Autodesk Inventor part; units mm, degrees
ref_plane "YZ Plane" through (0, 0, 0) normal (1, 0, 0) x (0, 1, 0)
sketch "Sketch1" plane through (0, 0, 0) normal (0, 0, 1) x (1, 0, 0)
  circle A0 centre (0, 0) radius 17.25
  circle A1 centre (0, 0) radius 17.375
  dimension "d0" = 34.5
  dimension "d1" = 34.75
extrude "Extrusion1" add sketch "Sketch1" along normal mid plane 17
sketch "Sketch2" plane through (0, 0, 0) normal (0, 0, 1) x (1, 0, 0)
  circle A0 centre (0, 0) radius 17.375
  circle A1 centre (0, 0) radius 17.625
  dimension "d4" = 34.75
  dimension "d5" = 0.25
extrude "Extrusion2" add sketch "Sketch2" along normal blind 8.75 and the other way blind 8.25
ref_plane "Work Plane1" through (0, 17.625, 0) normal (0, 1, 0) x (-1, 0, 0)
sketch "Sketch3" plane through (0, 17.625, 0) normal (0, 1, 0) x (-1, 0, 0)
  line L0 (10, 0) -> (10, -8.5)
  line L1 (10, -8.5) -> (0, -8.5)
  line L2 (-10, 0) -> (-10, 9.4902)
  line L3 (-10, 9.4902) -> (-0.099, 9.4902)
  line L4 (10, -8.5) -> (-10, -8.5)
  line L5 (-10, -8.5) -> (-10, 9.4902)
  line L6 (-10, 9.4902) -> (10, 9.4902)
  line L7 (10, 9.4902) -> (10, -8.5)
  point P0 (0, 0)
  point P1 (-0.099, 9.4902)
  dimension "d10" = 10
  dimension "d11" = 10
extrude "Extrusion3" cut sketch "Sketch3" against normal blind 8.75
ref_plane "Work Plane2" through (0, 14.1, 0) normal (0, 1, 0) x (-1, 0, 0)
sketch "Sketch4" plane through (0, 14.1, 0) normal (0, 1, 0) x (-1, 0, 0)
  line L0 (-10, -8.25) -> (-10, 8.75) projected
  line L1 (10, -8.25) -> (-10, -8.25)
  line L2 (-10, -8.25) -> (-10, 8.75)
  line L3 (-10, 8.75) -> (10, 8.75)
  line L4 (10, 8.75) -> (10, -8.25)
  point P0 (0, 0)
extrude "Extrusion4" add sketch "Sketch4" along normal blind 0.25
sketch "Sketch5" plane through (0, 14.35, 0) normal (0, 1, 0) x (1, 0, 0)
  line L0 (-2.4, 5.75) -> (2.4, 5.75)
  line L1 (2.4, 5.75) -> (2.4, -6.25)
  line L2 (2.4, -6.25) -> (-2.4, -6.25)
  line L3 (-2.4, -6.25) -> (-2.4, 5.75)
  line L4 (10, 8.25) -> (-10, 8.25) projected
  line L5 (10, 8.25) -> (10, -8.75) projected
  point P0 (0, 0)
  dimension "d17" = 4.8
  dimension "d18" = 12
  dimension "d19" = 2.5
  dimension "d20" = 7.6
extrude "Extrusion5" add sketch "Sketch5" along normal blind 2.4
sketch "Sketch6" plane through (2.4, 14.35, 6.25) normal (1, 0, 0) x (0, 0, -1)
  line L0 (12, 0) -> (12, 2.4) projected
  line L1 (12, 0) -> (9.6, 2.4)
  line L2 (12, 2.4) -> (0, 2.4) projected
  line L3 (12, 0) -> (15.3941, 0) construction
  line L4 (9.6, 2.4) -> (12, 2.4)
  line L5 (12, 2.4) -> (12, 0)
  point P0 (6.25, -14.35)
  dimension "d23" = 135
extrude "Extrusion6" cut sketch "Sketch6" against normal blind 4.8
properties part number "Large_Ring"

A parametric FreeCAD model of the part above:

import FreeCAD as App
import Part
import Sketcher


def add_polygon(sketch, points):
    """Adds a closed chain of lines whose ends are joined by coincident constraints."""
    first, n = sketch.GeometryCount, len(points)
    for a, b in zip(points, points[1:] + points[:1]):
        sketch.addGeometry(Part.LineSegment(App.Vector(*a, 0), App.Vector(*b, 0)), False)
    for i in range(n):
        sketch.addConstraint(Sketcher.Constraint("Coincident", first + i, 2, first + (i + 1) % n, 1))

doc = App.newDocument("Part")
body = doc.addObject("PartDesign::Body", "Body")

# Sketch on XY plane
sketch1 = doc.addObject("Sketcher::SketchObject", "Sketch")
body.addObject(sketch1)
sketch1.AttachmentSupport = (doc.XY_Plane, [""])
sketch1.MapMode = "FlatFace"
sketch1.addGeometry([
    Part.Circle(App.Vector(0, 0, 0), App.Vector(0, 0, 1), 17),
    Part.Circle(App.Vector(0, 0, 0), App.Vector(0, 0, 1), 17),
], False)
sketch1.addConstraint([
    Sketcher.Constraint("Coincident", 0, 3, -1, 1),
    Sketcher.Constraint("Coincident", 1, 3, -1, 1),
    Sketcher.Constraint("Diameter", 1, 34.5),
    Sketcher.Constraint("Diameter", 0, 34.75),
])
pad1 = doc.addObject("PartDesign::Pad", "Pad")
body.addObject(pad1)
pad1.Profile = sketch1
pad1.Length = 17
pad1.Midplane = True

# Sketch on XY plane
sketch2 = doc.addObject("Sketcher::SketchObject", "Sketch001")
body.addObject(sketch2)
sketch2.AttachmentSupport = (doc.XY_Plane, [""])
sketch2.MapMode = "FlatFace"
sketch2.addGeometry([
    Part.Circle(App.Vector(0, 0, 0), App.Vector(0, 0, 1), 18),
    Part.Circle(App.Vector(0, 0, 0), App.Vector(0, 0, 1), 17),
], False)
sketch2.addConstraint([
    Sketcher.Constraint("Coincident", 0, 3, -1, 1),
    Sketcher.Constraint("Coincident", 1, 3, -1, 1),
    Sketcher.Constraint("Diameter", 1, 34.75),
    Sketcher.Constraint("Diameter", 0, 35.25),
])
pad2 = doc.addObject("PartDesign::Pad", "Pad001")
body.addObject(pad2)
pad2.Profile = sketch2
pad2.Type = "TwoLengths"
pad2.Length = 8.75
pad2.Length2 = 8.25

# Sketch on XZ plane
sketch3 = doc.addObject("Sketcher::SketchObject", "Sketch002")
body.addObject(sketch3)
sketch3.AttachmentSupport = (doc.XZ_Plane, [""])
sketch3.MapMode = "FlatFace"
sketch3.AttachmentOffset = App.Placement(App.Vector(0, 0, -17.625), App.Rotation())
add_polygon(sketch3, [(-10, -8), (-10, 9), (10, 9), (10, -8)])  # lines 0-3
sketch3.addConstraint([
    Sketcher.Constraint("Vertical", 0),
    Sketcher.Constraint("Horizontal", 1),
    Sketcher.Constraint("Vertical", 2),
    Sketcher.Constraint("Horizontal", 3),
    Sketcher.Constraint("DistanceX", 0, 2, -1, 1, 10.0),
    Sketcher.Constraint("DistanceX", -1, 1, 1, 2, 10.0),
    Sketcher.Constraint("DistanceY", 2, 2, -1, 1, 8.5),
    Sketcher.Constraint("DistanceY", 0, 1, 0, 2, 17.9902),
])
pocket1 = doc.addObject("PartDesign::Pocket", "Pocket")
body.addObject(pocket1)
pocket1.Profile = sketch3
pocket1.Length = 8.75
pocket1.Reversed = True

# Sketch on XZ plane
sketch4 = doc.addObject("Sketcher::SketchObject", "Sketch003")
body.addObject(sketch4)
sketch4.AttachmentSupport = (doc.XZ_Plane, [""])
sketch4.MapMode = "FlatFace"
sketch4.AttachmentOffset = App.Placement(App.Vector(0, 0, -14.1), App.Rotation())
add_polygon(sketch4, [(10, 9), (10, -8), (-10, -8), (-10, 9)])  # lines 0-3
sketch4.addConstraint([
    Sketcher.Constraint("Vertical", 0),
    Sketcher.Constraint("Horizontal", 1),
    Sketcher.Constraint("Vertical", 2),
    Sketcher.Constraint("Horizontal", 3),
    Sketcher.Constraint("DistanceX", 1, 2, 1, 1, 20.0),
    Sketcher.Constraint("DistanceY", 0, 2, 0, 1, 17.0),
    Sketcher.Constraint("DistanceX", -1, 1, 0, 2, 10.0),
    Sketcher.Constraint("DistanceY", 0, 2, -1, 1, 8.25),
])
pad3 = doc.addObject("PartDesign::Pad", "Pad002")
body.addObject(pad3)
pad3.Profile = sketch4
pad3.Length = 0.25
pad3.Reversed = True

# Sketch on XZ plane
sketch5 = doc.addObject("Sketcher::SketchObject", "Sketch004")
body.addObject(sketch5)
sketch5.AttachmentSupport = (doc.XZ_Plane, [""])
sketch5.MapMode = "FlatFace"
sketch5.AttachmentOffset = App.Placement(App.Vector(0, 0, -14.35), App.Rotation())
add_polygon(sketch5, [(2.4, -5.8), (-2.4, -5.8), (-2.4, 6.2), (2.4, 6.2)])  # lines 0-3
sketch5.addConstraint([
    Sketcher.Constraint("Horizontal", 0),
    Sketcher.Constraint("Vertical", 1),
    Sketcher.Constraint("Horizontal", 2),
    Sketcher.Constraint("Vertical", 3),
    Sketcher.Constraint("DistanceY", 1, 1, 1, 2, 12.0),
    Sketcher.Constraint("DistanceX", 0, 2, 0, 1, 4.8),
    Sketcher.Constraint("DistanceX", 0, 2, -1, 1, 2.4),
    Sketcher.Constraint("DistanceY", 0, 2, -1, 1, 5.75),
])
pad4 = doc.addObject("PartDesign::Pad", "Pad003")
body.addObject(pad4)
pad4.Profile = sketch5
pad4.Length = 2.4
pad4.Reversed = True

# Sketch on YZ plane
sketch6 = doc.addObject("Sketcher::SketchObject", "Sketch005")
body.addObject(sketch6)
sketch6.AttachmentSupport = (doc.YZ_Plane, [""])
sketch6.MapMode = "FlatFace"
sketch6.AttachmentOffset = App.Placement(App.Vector(0, 0, 2.4), App.Rotation())
add_polygon(sketch6, [(16.8, -3.4), (14.3, -5.8), (16.8, -5.8)])  # lines 0-2
sketch6.addConstraint([
    Sketcher.Constraint("Horizontal", 1),
    Sketcher.Constraint("Vertical", 2),
    Sketcher.Constraint("Equal", 1, 2),
    Sketcher.Constraint("DistanceX", 1, 1, 1, 2, 2.4),
    Sketcher.Constraint("DistanceX", -1, 1, 0, 2, 14.35),
    Sketcher.Constraint("DistanceY", 0, 2, -1, 1, 5.75),
])
pocket2 = doc.addObject("PartDesign::Pocket", "Pocket001")
body.addObject(pocket2)
pocket2.Profile = sketch6
pocket2.Length = 4.8

doc.recompute()
